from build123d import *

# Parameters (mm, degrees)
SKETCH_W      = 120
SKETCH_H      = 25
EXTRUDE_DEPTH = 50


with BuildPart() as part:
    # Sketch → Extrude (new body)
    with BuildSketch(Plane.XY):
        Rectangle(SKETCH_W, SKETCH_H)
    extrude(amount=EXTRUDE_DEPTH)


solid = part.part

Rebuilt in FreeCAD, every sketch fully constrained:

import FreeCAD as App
import Part
import Sketcher
from FreeCAD import Vector
Q = App.Units.Quantity


def add_polygon(sketch, points):
    """Adds a closed chain of lines whose ends are joined by coincident constraints."""
    first, n = sketch.GeometryCount, len(points)
    for a, b in zip(points, points[1:] + points[:1]):
        sketch.addGeometry(Part.LineSegment(App.Vector(*a, 0), App.Vector(*b, 0)), False)
    for i in range(n):
        sketch.addConstraint(Sketcher.Constraint("Coincident", first + i, 2, first + (i + 1) % n, 1))

doc = App.newDocument("Part")
params = doc.addObject("Spreadsheet::Sheet", "Params")
for row, (alias, value) in enumerate([
    ("sketch1_width", "120 mm"),
    ("sketch1_height", "25 mm"),
    ("pad1_length", "50 mm"),
], start=1):
    params.set(f"A{row}", alias)
    params.set(f"B{row}", "=" + value)
    params.setAlias(f"B{row}", alias)

body = doc.addObject("PartDesign::Body", "Body")

sketch1 = body.newObject("Sketcher::SketchObject", "Sketch")
sketch1.AttachmentSupport = (doc.getObject("XY_Plane"), [""])
sketch1.MapMode = "FlatFace"
add_polygon(sketch1, [(-60, 12.5), (-60, -12.5), (60, -12.5), (60, 12.5)])
sketch1.addConstraint([
    Sketcher.Constraint("Vertical", 0),
    Sketcher.Constraint("Horizontal", 1),
    Sketcher.Constraint("Vertical", 2),
    Sketcher.Constraint("Horizontal", 3),
    Sketcher.Constraint("Symmetric", 0, 2, 2, 2, -1, 1),
    Sketcher.Constraint("DistanceX", 1, 1, 1, 2, Q("120 mm")),
    Sketcher.Constraint("DistanceY", 0, 2, 0, 1, Q("25 mm")),
])
sketch1.setExpression("Constraints[9]", "Params.sketch1_width")
sketch1.setExpression("Constraints[10]", "Params.sketch1_height")
pad1 = body.newObject("PartDesign::Pad", "Pad")
pad1.Profile = sketch1
pad1.setExpression("Length", "Params.pad1_length")

doc.recompute()
